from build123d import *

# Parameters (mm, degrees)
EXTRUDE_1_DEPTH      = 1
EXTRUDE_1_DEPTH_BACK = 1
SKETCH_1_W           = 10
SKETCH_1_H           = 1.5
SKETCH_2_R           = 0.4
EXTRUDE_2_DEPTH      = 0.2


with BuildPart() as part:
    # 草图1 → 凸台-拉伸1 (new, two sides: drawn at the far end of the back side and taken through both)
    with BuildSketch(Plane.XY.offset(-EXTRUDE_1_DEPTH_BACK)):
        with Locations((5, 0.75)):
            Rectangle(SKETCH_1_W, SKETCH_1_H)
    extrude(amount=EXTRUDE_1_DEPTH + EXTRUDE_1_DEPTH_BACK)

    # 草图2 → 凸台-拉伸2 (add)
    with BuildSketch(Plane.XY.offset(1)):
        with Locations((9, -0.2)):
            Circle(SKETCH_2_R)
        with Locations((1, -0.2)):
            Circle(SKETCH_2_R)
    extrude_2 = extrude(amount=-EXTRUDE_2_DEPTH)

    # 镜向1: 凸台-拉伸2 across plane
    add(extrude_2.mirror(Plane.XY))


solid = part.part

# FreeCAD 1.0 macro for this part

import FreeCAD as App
import Part
import Sketcher
from FreeCAD import Vector
Q = App.Units.Quantity

doc = App.newDocument("Part")
params = doc.addObject("Spreadsheet::Sheet", "Params")
for row, (alias, value) in enumerate([
    ("sketch1_width", "10 mm"),
    ("sketch1_height", "1.5 mm"),
    ("pad1_length", "1 mm"),
    ("pad1_length2", "1 mm"),
    ("sketch2_diameter", "0.8 mm"),
    ("pad2_length", "0.2 mm"),
], start=1):
    params.set(f"A{row}", alias)
    params.set(f"B{row}", "=" + value)
    params.setAlias(f"B{row}", alias)

body = doc.addObject("PartDesign::Body", "Body")

# Sketch on XY plane
sketch1 = body.newObject("Sketcher::SketchObject", "Sketch")
sketch1.AttachmentSupport = (doc.getObject("XY_Plane"), [""])
sketch1.MapMode = "FlatFace"
sketch1.addGeometry(Part.LineSegment(Vector(0, 1.5, 0), Vector(0, 0, 0)), False)
sketch1.addGeometry(Part.LineSegment(Vector(0, 0, 0), Vector(10, 0, 0)), False)
sketch1.addGeometry(Part.LineSegment(Vector(10, 0, 0), Vector(10, 1.5, 0)), False)
sketch1.addGeometry(Part.LineSegment(Vector(10, 1.5, 0), Vector(0, 1.5, 0)), False)
sketch1.addConstraint(Sketcher.Constraint("Coincident", 0, 2, 1, 1))
sketch1.addConstraint(Sketcher.Constraint("Coincident", 1, 2, 2, 1))
sketch1.addConstraint(Sketcher.Constraint("Coincident", 2, 2, 3, 1))
sketch1.addConstraint(Sketcher.Constraint("Coincident", 3, 2, 0, 1))
sketch1.addConstraint(Sketcher.Constraint("Vertical", 0))
sketch1.addConstraint(Sketcher.Constraint("Horizontal", 1))
sketch1.addConstraint(Sketcher.Constraint("Vertical", 2))
sketch1.addConstraint(Sketcher.Constraint("Horizontal", 3))
sketch1.addConstraint(Sketcher.Constraint("Coincident", 0, 2, -1, 1))
sketch1.addConstraint(Sketcher.Constraint("DistanceX", 1, 1, 1, 2, Q("10 mm")))
sketch1.addConstraint(Sketcher.Constraint("DistanceY", 0, 2, 0, 1, Q("1.5 mm")))
sketch1.setExpression("Constraints[9]", "Params.sketch1_width")
sketch1.setExpression("Constraints[10]", "Params.sketch1_height")
pad1 = body.newObject("PartDesign::Pad", "Pad")
pad1.Profile = sketch1
pad1.Type = "TwoLengths"
pad1.setExpression("Length", "Params.pad1_length")
pad1.setExpression("Length2", "Params.pad1_length2")

# Sketch on XY plane
sketch2 = body.newObject("Sketcher::SketchObject", "Sketch001")
sketch2.AttachmentSupport = (doc.getObject("XY_Plane"), [""])
sketch2.MapMode = "FlatFace"
sketch2.AttachmentOffset = App.Placement(Vector(0, 0, 1), App.Rotation())
sketch2.addGeometry(Part.Circle(Vector(9, -0.2, 0), Vector(0, 0, 1), 0.4), False)
sketch2.addGeometry(Part.Circle(Vector(1, -0.2, 0), Vector(0, 0, 1), 0.4), False)
sketch2.addConstraint(Sketcher.Constraint("Equal", 0, 1))
sketch2.addConstraint(Sketcher.Constraint("Horizontal", 0, 3, 1, 3))
sketch2.addConstraint(Sketcher.Constraint("Diameter", 0, Q("0.8 mm")))
sketch2.addConstraint(Sketcher.Constraint("DistanceX", -1, 1, 0, 3, Q("9 mm")))
sketch2.addConstraint(Sketcher.Constraint("DistanceX", -1, 1, 1, 3, Q("1 mm")))
sketch2.addConstraint(Sketcher.Constraint("DistanceY", 0, 3, -1, 1, Q("0.2 mm")))
sketch2.setExpression("Constraints[2]", "Params.sketch2_diameter")
pad2 = body.newObject("PartDesign::Pad", "Pad001")
pad2.Profile = sketch2
pad2.setExpression("Length", "Params.pad2_length")
pad2.Reversed = True
doc.recompute()

mirrored = body.newObject("PartDesign::Mirrored", "Mirrored")
mirrored.Originals = [pad2]
mirrored.MirrorPlane = (doc.getObject("XY_Plane"), [""])
body.Tip = mirrored

doc.recompute()
